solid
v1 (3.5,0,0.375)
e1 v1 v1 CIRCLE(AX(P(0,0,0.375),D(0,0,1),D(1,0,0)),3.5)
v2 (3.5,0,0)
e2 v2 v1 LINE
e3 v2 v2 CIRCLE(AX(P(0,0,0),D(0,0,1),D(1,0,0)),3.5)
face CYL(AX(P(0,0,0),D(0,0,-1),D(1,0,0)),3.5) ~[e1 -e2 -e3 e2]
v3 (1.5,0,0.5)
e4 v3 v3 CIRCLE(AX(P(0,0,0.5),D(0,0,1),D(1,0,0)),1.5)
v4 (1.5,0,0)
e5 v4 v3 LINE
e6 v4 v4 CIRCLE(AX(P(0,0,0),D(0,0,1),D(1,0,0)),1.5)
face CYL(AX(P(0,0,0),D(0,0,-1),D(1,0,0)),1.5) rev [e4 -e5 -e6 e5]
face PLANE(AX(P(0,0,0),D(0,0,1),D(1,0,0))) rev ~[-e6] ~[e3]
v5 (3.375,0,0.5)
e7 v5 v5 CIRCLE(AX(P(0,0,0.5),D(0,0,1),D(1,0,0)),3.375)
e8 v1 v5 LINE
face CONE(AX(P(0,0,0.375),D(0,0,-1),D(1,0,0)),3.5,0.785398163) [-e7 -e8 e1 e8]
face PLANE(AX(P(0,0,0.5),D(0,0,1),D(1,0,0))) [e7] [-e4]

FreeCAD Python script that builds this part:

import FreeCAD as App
import Part
import Sketcher

V = App.Vector


def edges_at(feature, points):
    """Names of the edges that pass closest to the given points."""
    edges = feature.Shape.Edges
    near = lambda p: min(range(len(edges)), key=lambda i: edges[i].distToShape(Part.Vertex(*p))[0])
    return sorted({f"Edge{near(p) + 1}" for p in points})

doc = App.newDocument("Part")
body = doc.addObject("PartDesign::Body", "Body")

# Sketch on XY plane
sketch1 = doc.addObject("Sketcher::SketchObject", "Sketch")
body.addObject(sketch1)
sketch1.AttachmentSupport = (doc.XY_Plane, [""])
sketch1.MapMode = "FlatFace"
sketch1.addGeometry(Part.Circle(V(0, 0, 0), V(0, 0, 1), 3.5), False)
sketch1.addGeometry(Part.Circle(V(0, 0, 0), V(0, 0, 1), 1.5), False)
sketch1.addConstraint(Sketcher.Constraint("Coincident", 0, 3, -1, 1))
sketch1.addConstraint(Sketcher.Constraint("Coincident", 1, 3, -1, 1))
sketch1.addConstraint(Sketcher.Constraint("Diameter", 0, 7.0))
sketch1.addConstraint(Sketcher.Constraint("Diameter", 1, 3.0))
pad1 = doc.addObject("PartDesign::Pad", "Pad")
body.addObject(pad1)
pad1.Profile = sketch1
pad1.Length = 0.5
doc.recompute()

chamfer = doc.addObject("PartDesign::Chamfer", "Chamfer")
body.addObject(chamfer)
chamfer.Base = (pad1, edges_at(pad1, [(-3.5, 0, 0.5)]))
chamfer.Size = 0.125

doc.recompute()
